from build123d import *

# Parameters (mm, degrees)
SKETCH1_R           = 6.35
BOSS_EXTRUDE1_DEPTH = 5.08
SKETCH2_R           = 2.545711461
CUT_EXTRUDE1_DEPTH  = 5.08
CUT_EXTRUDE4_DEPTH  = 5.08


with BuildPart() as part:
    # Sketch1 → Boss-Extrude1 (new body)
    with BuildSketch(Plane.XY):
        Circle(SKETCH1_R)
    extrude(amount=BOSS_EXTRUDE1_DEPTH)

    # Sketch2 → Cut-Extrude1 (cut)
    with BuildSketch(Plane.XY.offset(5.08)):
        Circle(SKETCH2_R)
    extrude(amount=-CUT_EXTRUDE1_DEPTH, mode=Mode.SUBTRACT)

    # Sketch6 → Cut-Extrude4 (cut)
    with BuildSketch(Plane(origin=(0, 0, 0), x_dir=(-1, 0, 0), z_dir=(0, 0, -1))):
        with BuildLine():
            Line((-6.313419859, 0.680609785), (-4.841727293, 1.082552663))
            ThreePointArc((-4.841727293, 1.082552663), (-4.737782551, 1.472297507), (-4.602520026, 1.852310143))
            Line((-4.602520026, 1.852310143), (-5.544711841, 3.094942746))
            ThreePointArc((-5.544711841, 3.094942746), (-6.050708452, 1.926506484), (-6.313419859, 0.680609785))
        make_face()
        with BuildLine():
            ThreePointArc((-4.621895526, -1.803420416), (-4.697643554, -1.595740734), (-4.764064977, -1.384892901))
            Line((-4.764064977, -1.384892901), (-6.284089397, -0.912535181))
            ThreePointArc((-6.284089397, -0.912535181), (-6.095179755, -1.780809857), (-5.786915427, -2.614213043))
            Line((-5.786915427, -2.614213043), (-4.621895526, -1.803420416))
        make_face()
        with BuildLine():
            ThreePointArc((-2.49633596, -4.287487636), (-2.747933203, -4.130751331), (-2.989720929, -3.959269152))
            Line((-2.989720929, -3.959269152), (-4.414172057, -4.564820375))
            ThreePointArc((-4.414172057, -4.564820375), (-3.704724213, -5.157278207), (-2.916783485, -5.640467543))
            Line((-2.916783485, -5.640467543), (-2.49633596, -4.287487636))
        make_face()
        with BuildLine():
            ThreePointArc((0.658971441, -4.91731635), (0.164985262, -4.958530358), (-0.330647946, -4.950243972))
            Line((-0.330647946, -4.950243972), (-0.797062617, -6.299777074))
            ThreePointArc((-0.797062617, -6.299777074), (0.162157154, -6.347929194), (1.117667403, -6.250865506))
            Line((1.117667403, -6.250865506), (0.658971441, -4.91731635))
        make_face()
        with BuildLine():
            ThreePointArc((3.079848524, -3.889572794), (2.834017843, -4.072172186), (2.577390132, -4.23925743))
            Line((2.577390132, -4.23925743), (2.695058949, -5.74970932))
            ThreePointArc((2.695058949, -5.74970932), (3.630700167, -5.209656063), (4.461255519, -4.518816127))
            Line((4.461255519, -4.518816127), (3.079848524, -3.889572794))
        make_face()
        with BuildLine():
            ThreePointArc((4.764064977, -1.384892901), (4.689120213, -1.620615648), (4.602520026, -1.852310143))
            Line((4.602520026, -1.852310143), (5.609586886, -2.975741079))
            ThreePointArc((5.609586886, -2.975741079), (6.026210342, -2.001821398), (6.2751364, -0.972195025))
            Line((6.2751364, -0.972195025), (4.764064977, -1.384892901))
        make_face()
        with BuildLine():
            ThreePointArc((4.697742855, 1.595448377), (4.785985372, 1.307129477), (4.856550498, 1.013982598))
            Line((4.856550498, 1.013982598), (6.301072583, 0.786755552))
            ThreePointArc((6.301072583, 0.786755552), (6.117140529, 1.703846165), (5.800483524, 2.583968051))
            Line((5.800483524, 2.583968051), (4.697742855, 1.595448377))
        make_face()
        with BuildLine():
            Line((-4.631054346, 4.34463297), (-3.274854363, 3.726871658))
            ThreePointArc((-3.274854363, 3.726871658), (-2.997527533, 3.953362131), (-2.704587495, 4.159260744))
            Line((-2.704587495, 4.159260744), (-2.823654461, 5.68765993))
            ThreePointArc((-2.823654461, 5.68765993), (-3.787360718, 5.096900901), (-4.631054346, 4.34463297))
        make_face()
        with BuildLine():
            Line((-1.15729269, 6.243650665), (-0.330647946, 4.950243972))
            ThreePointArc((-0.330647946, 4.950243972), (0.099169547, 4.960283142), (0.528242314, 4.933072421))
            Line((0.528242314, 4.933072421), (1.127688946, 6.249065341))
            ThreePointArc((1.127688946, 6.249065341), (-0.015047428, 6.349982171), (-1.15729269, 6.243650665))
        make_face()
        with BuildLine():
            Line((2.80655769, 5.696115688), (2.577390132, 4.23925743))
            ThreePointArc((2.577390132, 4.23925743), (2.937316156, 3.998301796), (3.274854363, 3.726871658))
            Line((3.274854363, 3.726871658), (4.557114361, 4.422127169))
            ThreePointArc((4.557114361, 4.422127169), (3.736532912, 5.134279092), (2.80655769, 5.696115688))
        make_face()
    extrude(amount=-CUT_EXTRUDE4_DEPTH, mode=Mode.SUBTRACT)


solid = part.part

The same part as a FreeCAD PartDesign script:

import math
import FreeCAD as App
import Part
import Sketcher
Q = App.Units.Quantity

doc = App.newDocument("Part")
params = doc.addObject("Spreadsheet::Sheet", "Params")
for row, (alias, value) in enumerate([
    ("sketch1_diameter", "0.5 in"),
    ("pad1_length", "0.2 in"),
    ("pocket1_length", "0.2 in"),
    ("sketch3_radius", "0.25 in"),
    ("pocket2_length", "0.2 in"),
], start=1):
    params.set(f"A{row}", alias)
    params.set(f"B{row}", "=" + value)
    params.setAlias(f"B{row}", alias)

body = doc.addObject("PartDesign::Body", "Body")

sketch1 = body.newObject("Sketcher::SketchObject", "Sketch")
sketch1.AttachmentSupport = (doc.getObject("XY_Plane"), [""])
sketch1.MapMode = "FlatFace"
sketch1.addGeometry(Part.Circle(App.Vector(0, 0, 0), App.Vector(0, 0, 1), 6.35), False)
sketch1.addConstraint([
    Sketcher.Constraint("Coincident", 0, 3, -1, 1),
    Sketcher.Constraint("Diameter", 0, Q("0.5 in")),
])
sketch1.setExpression("Constraints[1]", "Params.sketch1_diameter")
pad1 = body.newObject("PartDesign::Pad", "Pad")
pad1.Profile = sketch1
pad1.setExpression("Length", "Params.pad1_length")

sketch2 = body.newObject("Sketcher::SketchObject", "Sketch001")
sketch2.AttachmentSupport = (doc.getObject("XY_Plane"), [""])
sketch2.MapMode = "FlatFace"
sketch2.AttachmentOffset = App.Placement(App.Vector(0, 0, 0.2 * 25.4), App.Rotation())
sketch2.addGeometry(Part.Circle(App.Vector(0, 0, 0), App.Vector(0, 0, 1), 2.545711), False)
sketch2.addConstraint([
    Sketcher.Constraint("Coincident", 0, 3, -1, 1),
    Sketcher.Constraint("Diameter", 0, 5.091423),
])
pocket1 = body.newObject("PartDesign::Pocket", "Pocket")
pocket1.Profile = sketch2
pocket1.setExpression("Length", "Params.pocket1_length")

sketch3 = body.newObject("Sketcher::SketchObject", "Sketch002")
sketch3.AttachmentSupport = (doc.getObject("XY_Plane"), [""])
sketch3.MapMode = "FlatFace"
sketch3.addGeometry([
    Part.LineSegment(App.Vector(6.31342, 0.68061, 0), App.Vector(4.841727, 1.082553, 0)),
    Part.ArcOfCircle(Part.Circle(App.Vector(0, 0, 0), App.Vector(0, 0, 1), 4.961274), math.radians(12.603363), math.radians(21.922598)),
    Part.LineSegment(App.Vector(4.60252, 1.85231, 0), App.Vector(5.544712, 3.094943, 0)),
    Part.ArcOfCircle(Part.Circle(App.Vector(0, 0, 0), App.Vector(0, 0, 1), 6.35), math.radians(6.152933), math.radians(29.169346)),
    Part.ArcOfCircle(Part.Circle(App.Vector(0, 0, 0), App.Vector(0, 0, 1), 4.961274), math.radians(-21.315264), math.radians(-16.208917)),
    Part.LineSegment(App.Vector(4.764065, -1.384893, 0), App.Vector(6.284089, -0.912535, 0)),
    Part.ArcOfCircle(Part.Circle(App.Vector(0, 0, 0), App.Vector(0, 0, 1), 6.35), math.radians(-24.310859), math.radians(-8.262373)),
    Part.LineSegment(App.Vector(5.786915, -2.614213, 0), App.Vector(4.621896, -1.80342, 0)),
    Part.ArcOfCircle(Part.Circle(App.Vector(0, 0, 0), App.Vector(0, 0, 1), 4.961275), math.radians(-59.790432), math.radians(-52.942839)),
    Part.LineSegment(App.Vector(2.989721, -3.959269, 0), App.Vector(4.414172, -4.56482, 0)),
    Part.ArcOfCircle(Part.Circle(App.Vector(0, 0, 0), App.Vector(0, 0, 1), 6.35), math.radians(-62.655732), math.radians(-45.961211)),
    Part.LineSegment(App.Vector(2.916783, -5.640468, 0), App.Vector(2.496336, -4.287488, 0)),
    Part.ArcOfCircle(Part.Circle(App.Vector(0, 0, 0), App.Vector(0, 0, 1), 4.961274), math.radians(-97.632754), math.radians(-86.178646)),
    Part.LineSegment(App.Vector(0.330648, -4.950244, 0), App.Vector(0.797063, -6.299777, 0)),
    Part.ArcOfCircle(Part.Circle(App.Vector(0, 0, 0), App.Vector(0, 0, 1), 6.35), math.radians(-100.137475), math.radians(-82.789117)),
    Part.LineSegment(App.Vector(-1.117667, -6.250866, 0), App.Vector(-0.658971, -4.917316, 0)),
    Part.ArcOfCircle(Part.Circle(App.Vector(0, 0, 0), App.Vector(0, 0, 1), 4.961275), math.radians(-128.372949), math.radians(-121.298828)),
    Part.LineSegment(App.Vector(-2.57739, -4.239257, 0), App.Vector(-2.695059, -5.749709, 0)),
    Part.ArcOfCircle(Part.Circle(App.Vector(0, 0, 0), App.Vector(0, 0, 1), 6.35), math.radians(-134.63275), math.radians(-115.113877)),
    Part.LineSegment(App.Vector(-4.461256, -4.518816, 0), App.Vector(-3.079849, -3.889573, 0)),
    Part.ArcOfCircle(Part.Circle(App.Vector(0, 0, 0), App.Vector(0, 0, 1), 4.961275), math.radians(-163.791083), math.radians(-158.077402)),
    Part.LineSegment(App.Vector(-4.60252, -1.85231, 0), App.Vector(-5.609587, -2.975741, 0)),
    Part.ArcOfCircle(Part.Circle(App.Vector(0, 0, 0), App.Vector(0, 0, 1), 6.35), math.radians(-171.193289), math.radians(-152.055203)),
    Part.LineSegment(App.Vector(-6.275136, -0.972195, 0), App.Vector(-4.764065, -1.384893, 0)),
    Part.ArcOfCircle(Part.Circle(App.Vector(0, 0, 0), App.Vector(0, 0, 1), 4.961274), math.radians(161.241475), math.radians(168.206824)),
    Part.LineSegment(App.Vector(-4.85655, 1.013983, 0), App.Vector(-6.301073, 0.786756, 0)),
    Part.ArcOfCircle(Part.Circle(App.Vector(0, 0, 0), App.Vector(0, 0, 1), 6.35), math.radians(155.988242), math.radians(172.882849)),
    Part.LineSegment(App.Vector(-5.800484, 2.583968, 0), App.Vector(-4.697743, 1.595448, 0)),
    Part.LineSegment(App.Vector(4.631054, 4.344633, 0), App.Vector(3.274854, 3.726872, 0)),
    Part.ArcOfCircle(Part.Circle(App.Vector(0, 0, 0), App.Vector(0, 0, 1), 4.961275), math.radians(48.693774), math.radians(56.965791)),
    Part.LineSegment(App.Vector(2.704587, 4.159261, 0), App.Vector(2.823654, 5.68766, 0)),
    Part.ArcOfCircle(Part.Circle(App.Vector(0, 0, 0), App.Vector(0, 0, 1), 6.35), math.radians(43.172266), math.radians(63.597773)),
    Part.LineSegment(App.Vector(1.157293, 6.243651, 0), App.Vector(0.330648, 4.950244, 0)),
    Part.ArcOfCircle(Part.Circle(App.Vector(0, 0, 0), App.Vector(0, 0, 1), 4.961274), math.radians(86.178646), math.radians(96.112045)),
    Part.LineSegment(App.Vector(-0.528242, 4.933072, 0), App.Vector(-1.127689, 6.249065, 0)),
    Part.ArcOfCircle(Part.Circle(App.Vector(0, 0, 0), App.Vector(0, 0, 1), 6.35), math.radians(79.499109), math.radians(100.229346)),
    Part.LineSegment(App.Vector(-2.806558, 5.696116, 0), App.Vector(-2.57739, 4.239257, 0)),
    Part.ArcOfCircle(Part.Circle(App.Vector(0, 0, 0), App.Vector(0, 0, 1), 4.961274), math.radians(121.298828), math.radians(131.306226)),
    Part.LineSegment(App.Vector(-3.274854, 3.726872, 0), App.Vector(-4.557114, 4.422127, 0)),
    Part.ArcOfCircle(Part.Circle(App.Vector(0, 0, 0), App.Vector(0, 0, 1), 6.35), math.radians(116.230127), math.radians(135.861277)),
], False)
sketch3.addConstraint([
    Sketcher.Constraint("Coincident", 0, 2, 1, 1),
    Sketcher.Constraint("Coincident", 1, 2, 2, 1),
    Sketcher.Constraint("Coincident", 2, 2, 3, 2),
    Sketcher.Constraint("Coincident", 3, 1, 0, 1),
    Sketcher.Constraint("Coincident", 4, 2, 5, 1),
    Sketcher.Constraint("Coincident", 5, 2, 6, 2),
    Sketcher.Constraint("Coincident", 6, 1, 7, 1),
    Sketcher.Constraint("Coincident", 7, 2, 4, 1),
    Sketcher.Constraint("Coincident", 8, 2, 9, 1),
    Sketcher.Constraint("Coincident", 9, 2, 10, 2),
    Sketcher.Constraint("Coincident", 10, 1, 11, 1),
    Sketcher.Constraint("Coincident", 11, 2, 8, 1),
    Sketcher.Constraint("Coincident", 12, 2, 13, 1),
    Sketcher.Constraint("Coincident", 13, 2, 14, 2),
    Sketcher.Constraint("Coincident", 14, 1, 15, 1),
    Sketcher.Constraint("Coincident", 15, 2, 12, 1),
    Sketcher.Constraint("Coincident", 16, 2, 17, 1),
    Sketcher.Constraint("Coincident", 17, 2, 18, 2),
    Sketcher.Constraint("Coincident", 18, 1, 19, 1),
    Sketcher.Constraint("Coincident", 19, 2, 16, 1),
    Sketcher.Constraint("Coincident", 20, 2, 21, 1),
    Sketcher.Constraint("Coincident", 21, 2, 22, 2),
    Sketcher.Constraint("Coincident", 22, 1, 23, 1),
    Sketcher.Constraint("Coincident", 23, 2, 20, 1),
    Sketcher.Constraint("Coincident", 24, 2, 25, 1),
    Sketcher.Constraint("Coincident", 25, 2, 26, 2),
    Sketcher.Constraint("Coincident", 26, 1, 27, 1),
    Sketcher.Constraint("Coincident", 27, 2, 24, 1),
    Sketcher.Constraint("Coincident", 28, 2, 29, 1),
    Sketcher.Constraint("Coincident", 29, 2, 30, 1),
    Sketcher.Constraint("Coincident", 30, 2, 31, 2),
    Sketcher.Constraint("Coincident", 31, 1, 28, 1),
    Sketcher.Constraint("Coincident", 32, 2, 33, 1),
    Sketcher.Constraint("Coincident", 33, 2, 34, 1),
    Sketcher.Constraint("Coincident", 34, 2, 35, 2),
    Sketcher.Constraint("Coincident", 35, 1, 32, 1),
    Sketcher.Constraint("Coincident", 36, 2, 37, 1),
    Sketcher.Constraint("Coincident", 37, 2, 38, 1),
    Sketcher.Constraint("Coincident", 38, 2, 39, 2),
    Sketcher.Constraint("Coincident", 39, 1, 36, 1),
    Sketcher.Constraint("Coincident", 1, 3, -1, 1),
    Sketcher.Constraint("Coincident", 3, 3, -1, 1),
    Sketcher.Constraint("Coincident", 4, 3, -1, 1),
    Sketcher.Constraint("Coincident", 6, 3, -1, 1),
    Sketcher.Constraint("Coincident", 8, 3, -1, 1),
    Sketcher.Constraint("Coincident", 10, 3, -1, 1),
    Sketcher.Constraint("Coincident", 12, 3, -1, 1),
    Sketcher.Constraint("Coincident", 14, 3, -1, 1),
    Sketcher.Constraint("Coincident", 16, 3, -1, 1),
    Sketcher.Constraint("Coincident", 18, 3, -1, 1),
    Sketcher.Constraint("Coincident", 20, 3, -1, 1),
    Sketcher.Constraint("Coincident", 22, 3, -1, 1),
    Sketcher.Constraint("Coincident", 24, 3, -1, 1),
    Sketcher.Constraint("Coincident", 26, 3, -1, 1),
    Sketcher.Constraint("Coincident", 29, 3, -1, 1),
    Sketcher.Constraint("Coincident", 31, 3, -1, 1),
    Sketcher.Constraint("Coincident", 33, 3, -1, 1),
    Sketcher.Constraint("Coincident", 35, 3, -1, 1),
    Sketcher.Constraint("Coincident", 37, 3, -1, 1),
    Sketcher.Constraint("Coincident", 39, 3, -1, 1),
    Sketcher.Constraint("Equal", 1, 4),
    Sketcher.Constraint("Equal", 3, 6),
    Sketcher.Constraint("Equal", 4, 8),
    Sketcher.Constraint("Equal", 6, 10),
    Sketcher.Constraint("Equal", 8, 12),
    Sketcher.Constraint("Equal", 10, 14),
    Sketcher.Constraint("Equal", 12, 16),
    Sketcher.Constraint("Equal", 14, 18),
    Sketcher.Constraint("Equal", 16, 20),
    Sketcher.Constraint("Equal", 18, 22),
    Sketcher.Constraint("Equal", 20, 24),
    Sketcher.Constraint("Equal", 22, 26),
    Sketcher.Constraint("Equal", 24, 29),
    Sketcher.Constraint("Equal", 26, 31),
    Sketcher.Constraint("Equal", 29, 33),
    Sketcher.Constraint("Equal", 31, 35),
    Sketcher.Constraint("Equal", 33, 37),
    Sketcher.Constraint("Equal", 35, 39),
    Sketcher.Constraint("Perpendicular", 5, 11),
    Sketcher.Constraint("Parallel", 0, 23),
    Sketcher.Constraint("Perpendicular", 21, 27),
    Sketcher.Constraint("Parallel", 19, 28),
    Sketcher.Constraint("Parallel", 17, 30),
    Sketcher.Constraint("Perpendicular", 28, 34),
    Sketcher.Constraint("Perpendicular", 25, 36),
    Sketcher.Constraint("Horizontal", 4, 2, 23, 2),
    Sketcher.Constraint("Horizontal", 28, 2, 37, 2),
    Sketcher.Constraint("Vertical", 12, 2, 32, 2),
    Sketcher.Constraint("Vertical", 16, 2, 36, 2),
    Sketcher.Constraint("Radius", 3, Q("0.25 in")),
    Sketcher.Constraint("DistanceY", 16, 2, -1, 1, Q("0.1668999 in")),
    Sketcher.Constraint("Radius", 1, 4.961274),
    Sketcher.Constraint("DistanceX", 1, 2, 3, 1, 1.7109),
    Sketcher.Constraint("DistanceY", 3, 1, 1, 2, 1.1717),
    Sketcher.Constraint("DistanceY", 9, 2, 7, 2, 2.7614),
    Sketcher.Constraint("DistanceY", 10, 1, 8, 2, 1.681198),
    Sketcher.Constraint("DistanceY", 15, 2, 18, 1, 0.3985),
    Sketcher.Constraint("DistanceY", 17, 2, 20, 2, 3.897399),
    Sketcher.Constraint("DistanceY", 29, 2, 30, 2, 1.528399),
    Sketcher.Constraint("DistanceX", 30, 2, 28, 2, 0.4512),
    Sketcher.Constraint("DistanceX", 28, 2, 31, 1, 1.3562),
    Sketcher.Constraint("DistanceY", 28, 2, 33, 2, 1.206201),
    Sketcher.Constraint("DistanceX", 36, 2, 34, 2, 1.449701),
    Sketcher.Constraint("Distance", 13, 1.427859),
    Sketcher.Constraint("Distance", 19, 1.51797),
    Sketcher.Constraint("Distance", 27, 1.480948),
    Sketcher.Constraint("Distance", 38, 1.45862),
    Sketcher.Constraint("DistanceX", -1, 1, 2, 2, 5.544712),
    Sketcher.Constraint("DistanceX", -1, 1, 5, 2, 6.284089),
    Sketcher.Constraint("DistanceY", 7, 2, -1, 1, 1.80342),
    Sketcher.Constraint("DistanceX", -1, 1, 8, 2, 2.989721),
    Sketcher.Constraint("DistanceY", 21, 2, -1, 1, 2.975741),
    Sketcher.Constraint("DistanceX", 24, 2, -1, 1, 4.85655),
    Sketcher.Constraint("DistanceY", -1, 1, 35, 1, 6.243651),
    Sketcher.Constraint("DistanceY", 0, 2, 2, 2, 2.01239),
    Sketcher.Constraint("DistanceX", 4, 2, 6, 1, 1.02285),
    Sketcher.Constraint("DistanceY", 6, 1, 4, 2, 1.22932),
    Sketcher.Constraint("DistanceX", 12, 2, 11, 2, 2.165688),
    Sketcher.Constraint("DistanceX", 14, 1, 13, 2, 1.91473),
    Sketcher.Constraint("DistanceY", 22, 1, 25, 2, 1.758951),
])
sketch3.setExpression("Constraints[89]", "Params.sketch3_radius")
pocket2 = body.newObject("PartDesign::Pocket", "Pocket001")
pocket2.Profile = sketch3
pocket2.setExpression("Length", "Params.pocket2_length")
pocket2.Reversed = True

doc.recompute()
